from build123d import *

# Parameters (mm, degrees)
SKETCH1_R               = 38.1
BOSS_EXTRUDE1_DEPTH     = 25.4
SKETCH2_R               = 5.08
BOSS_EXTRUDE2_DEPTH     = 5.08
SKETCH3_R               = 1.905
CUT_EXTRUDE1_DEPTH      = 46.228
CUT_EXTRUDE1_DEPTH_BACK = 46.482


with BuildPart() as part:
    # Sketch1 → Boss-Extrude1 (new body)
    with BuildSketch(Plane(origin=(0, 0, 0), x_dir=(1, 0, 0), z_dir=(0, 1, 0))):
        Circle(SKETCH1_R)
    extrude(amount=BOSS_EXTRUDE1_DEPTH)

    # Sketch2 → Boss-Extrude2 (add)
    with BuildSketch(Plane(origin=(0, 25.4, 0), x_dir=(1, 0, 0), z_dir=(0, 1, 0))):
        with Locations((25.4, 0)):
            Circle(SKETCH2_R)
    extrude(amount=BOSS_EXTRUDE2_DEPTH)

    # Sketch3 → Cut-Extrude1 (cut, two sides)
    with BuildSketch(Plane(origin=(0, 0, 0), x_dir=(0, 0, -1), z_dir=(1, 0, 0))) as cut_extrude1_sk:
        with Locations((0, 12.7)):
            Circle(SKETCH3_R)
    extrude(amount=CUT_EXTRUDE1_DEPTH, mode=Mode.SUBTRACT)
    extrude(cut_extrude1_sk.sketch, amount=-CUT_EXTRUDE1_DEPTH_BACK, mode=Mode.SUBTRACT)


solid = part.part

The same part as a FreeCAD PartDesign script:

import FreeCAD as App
import Part
import Sketcher

V = App.Vector
Q = App.Units.Quantity

doc = App.newDocument("Part")
body = doc.addObject("PartDesign::Body", "Body")

# Sketch on XZ plane
sketch1 = body.newObject("Sketcher::SketchObject", "Sketch")
sketch1.AttachmentSupport = (doc.getObject("XZ_Plane"), [""])
sketch1.MapMode = "FlatFace"
sketch1.addGeometry(Part.Circle(V(0, 0, 0), V(0, 0, 1), 38), False)
sketch1.addConstraint(Sketcher.Constraint("Coincident", 0, 3, -1, 1))
sketch1.addConstraint(Sketcher.Constraint("Diameter", 0, Q("3 in")))
pad1 = body.newObject("PartDesign::Pad", "Pad")
pad1.Profile = sketch1
pad1.Length = Q("1 in")
pad1.Reversed = True

# Sketch on XZ plane
sketch2 = body.newObject("Sketcher::SketchObject", "Sketch001")
sketch2.AttachmentSupport = (doc.getObject("XZ_Plane"), [""])
sketch2.MapMode = "FlatFace"
sketch2.AttachmentOffset = App.Placement(V(0, 0, -1 * 25.4), App.Rotation())
sketch2.addGeometry(Part.Circle(V(25, 0, 0), V(0, 0, 1), 5), False)
sketch2.addConstraint(Sketcher.Constraint("PointOnObject", 0, 3, -1))
sketch2.addConstraint(Sketcher.Constraint("Diameter", 0, Q("0.4 in")))
sketch2.addConstraint(Sketcher.Constraint("DistanceX", -1, 1, 0, 3, Q("1 in")))
pad2 = body.newObject("PartDesign::Pad", "Pad001")
pad2.Profile = sketch2
pad2.Length = Q("0.2 in")
pad2.Reversed = True

# Sketch on YZ plane
sketch3 = body.newObject("Sketcher::SketchObject", "Sketch002")
sketch3.AttachmentSupport = (doc.getObject("YZ_Plane"), [""])
sketch3.MapMode = "FlatFace"
sketch3.addGeometry(Part.Circle(V(12.7, 0, 0), V(0, 0, 1), 1.9), False)
sketch3.addConstraint(Sketcher.Constraint("PointOnObject", 0, 3, -1))
sketch3.addConstraint(Sketcher.Constraint("Diameter", 0, Q("0.15 in")))
sketch3.addConstraint(Sketcher.Constraint("DistanceX", -1, 1, 0, 3, Q("0.5 in")))
pocket1 = body.newObject("PartDesign::Pocket", "Pocket")
pocket1.Profile = sketch3
pocket1.Type = "ThroughAll"
pocket1.Midplane = True

doc.recompute()
